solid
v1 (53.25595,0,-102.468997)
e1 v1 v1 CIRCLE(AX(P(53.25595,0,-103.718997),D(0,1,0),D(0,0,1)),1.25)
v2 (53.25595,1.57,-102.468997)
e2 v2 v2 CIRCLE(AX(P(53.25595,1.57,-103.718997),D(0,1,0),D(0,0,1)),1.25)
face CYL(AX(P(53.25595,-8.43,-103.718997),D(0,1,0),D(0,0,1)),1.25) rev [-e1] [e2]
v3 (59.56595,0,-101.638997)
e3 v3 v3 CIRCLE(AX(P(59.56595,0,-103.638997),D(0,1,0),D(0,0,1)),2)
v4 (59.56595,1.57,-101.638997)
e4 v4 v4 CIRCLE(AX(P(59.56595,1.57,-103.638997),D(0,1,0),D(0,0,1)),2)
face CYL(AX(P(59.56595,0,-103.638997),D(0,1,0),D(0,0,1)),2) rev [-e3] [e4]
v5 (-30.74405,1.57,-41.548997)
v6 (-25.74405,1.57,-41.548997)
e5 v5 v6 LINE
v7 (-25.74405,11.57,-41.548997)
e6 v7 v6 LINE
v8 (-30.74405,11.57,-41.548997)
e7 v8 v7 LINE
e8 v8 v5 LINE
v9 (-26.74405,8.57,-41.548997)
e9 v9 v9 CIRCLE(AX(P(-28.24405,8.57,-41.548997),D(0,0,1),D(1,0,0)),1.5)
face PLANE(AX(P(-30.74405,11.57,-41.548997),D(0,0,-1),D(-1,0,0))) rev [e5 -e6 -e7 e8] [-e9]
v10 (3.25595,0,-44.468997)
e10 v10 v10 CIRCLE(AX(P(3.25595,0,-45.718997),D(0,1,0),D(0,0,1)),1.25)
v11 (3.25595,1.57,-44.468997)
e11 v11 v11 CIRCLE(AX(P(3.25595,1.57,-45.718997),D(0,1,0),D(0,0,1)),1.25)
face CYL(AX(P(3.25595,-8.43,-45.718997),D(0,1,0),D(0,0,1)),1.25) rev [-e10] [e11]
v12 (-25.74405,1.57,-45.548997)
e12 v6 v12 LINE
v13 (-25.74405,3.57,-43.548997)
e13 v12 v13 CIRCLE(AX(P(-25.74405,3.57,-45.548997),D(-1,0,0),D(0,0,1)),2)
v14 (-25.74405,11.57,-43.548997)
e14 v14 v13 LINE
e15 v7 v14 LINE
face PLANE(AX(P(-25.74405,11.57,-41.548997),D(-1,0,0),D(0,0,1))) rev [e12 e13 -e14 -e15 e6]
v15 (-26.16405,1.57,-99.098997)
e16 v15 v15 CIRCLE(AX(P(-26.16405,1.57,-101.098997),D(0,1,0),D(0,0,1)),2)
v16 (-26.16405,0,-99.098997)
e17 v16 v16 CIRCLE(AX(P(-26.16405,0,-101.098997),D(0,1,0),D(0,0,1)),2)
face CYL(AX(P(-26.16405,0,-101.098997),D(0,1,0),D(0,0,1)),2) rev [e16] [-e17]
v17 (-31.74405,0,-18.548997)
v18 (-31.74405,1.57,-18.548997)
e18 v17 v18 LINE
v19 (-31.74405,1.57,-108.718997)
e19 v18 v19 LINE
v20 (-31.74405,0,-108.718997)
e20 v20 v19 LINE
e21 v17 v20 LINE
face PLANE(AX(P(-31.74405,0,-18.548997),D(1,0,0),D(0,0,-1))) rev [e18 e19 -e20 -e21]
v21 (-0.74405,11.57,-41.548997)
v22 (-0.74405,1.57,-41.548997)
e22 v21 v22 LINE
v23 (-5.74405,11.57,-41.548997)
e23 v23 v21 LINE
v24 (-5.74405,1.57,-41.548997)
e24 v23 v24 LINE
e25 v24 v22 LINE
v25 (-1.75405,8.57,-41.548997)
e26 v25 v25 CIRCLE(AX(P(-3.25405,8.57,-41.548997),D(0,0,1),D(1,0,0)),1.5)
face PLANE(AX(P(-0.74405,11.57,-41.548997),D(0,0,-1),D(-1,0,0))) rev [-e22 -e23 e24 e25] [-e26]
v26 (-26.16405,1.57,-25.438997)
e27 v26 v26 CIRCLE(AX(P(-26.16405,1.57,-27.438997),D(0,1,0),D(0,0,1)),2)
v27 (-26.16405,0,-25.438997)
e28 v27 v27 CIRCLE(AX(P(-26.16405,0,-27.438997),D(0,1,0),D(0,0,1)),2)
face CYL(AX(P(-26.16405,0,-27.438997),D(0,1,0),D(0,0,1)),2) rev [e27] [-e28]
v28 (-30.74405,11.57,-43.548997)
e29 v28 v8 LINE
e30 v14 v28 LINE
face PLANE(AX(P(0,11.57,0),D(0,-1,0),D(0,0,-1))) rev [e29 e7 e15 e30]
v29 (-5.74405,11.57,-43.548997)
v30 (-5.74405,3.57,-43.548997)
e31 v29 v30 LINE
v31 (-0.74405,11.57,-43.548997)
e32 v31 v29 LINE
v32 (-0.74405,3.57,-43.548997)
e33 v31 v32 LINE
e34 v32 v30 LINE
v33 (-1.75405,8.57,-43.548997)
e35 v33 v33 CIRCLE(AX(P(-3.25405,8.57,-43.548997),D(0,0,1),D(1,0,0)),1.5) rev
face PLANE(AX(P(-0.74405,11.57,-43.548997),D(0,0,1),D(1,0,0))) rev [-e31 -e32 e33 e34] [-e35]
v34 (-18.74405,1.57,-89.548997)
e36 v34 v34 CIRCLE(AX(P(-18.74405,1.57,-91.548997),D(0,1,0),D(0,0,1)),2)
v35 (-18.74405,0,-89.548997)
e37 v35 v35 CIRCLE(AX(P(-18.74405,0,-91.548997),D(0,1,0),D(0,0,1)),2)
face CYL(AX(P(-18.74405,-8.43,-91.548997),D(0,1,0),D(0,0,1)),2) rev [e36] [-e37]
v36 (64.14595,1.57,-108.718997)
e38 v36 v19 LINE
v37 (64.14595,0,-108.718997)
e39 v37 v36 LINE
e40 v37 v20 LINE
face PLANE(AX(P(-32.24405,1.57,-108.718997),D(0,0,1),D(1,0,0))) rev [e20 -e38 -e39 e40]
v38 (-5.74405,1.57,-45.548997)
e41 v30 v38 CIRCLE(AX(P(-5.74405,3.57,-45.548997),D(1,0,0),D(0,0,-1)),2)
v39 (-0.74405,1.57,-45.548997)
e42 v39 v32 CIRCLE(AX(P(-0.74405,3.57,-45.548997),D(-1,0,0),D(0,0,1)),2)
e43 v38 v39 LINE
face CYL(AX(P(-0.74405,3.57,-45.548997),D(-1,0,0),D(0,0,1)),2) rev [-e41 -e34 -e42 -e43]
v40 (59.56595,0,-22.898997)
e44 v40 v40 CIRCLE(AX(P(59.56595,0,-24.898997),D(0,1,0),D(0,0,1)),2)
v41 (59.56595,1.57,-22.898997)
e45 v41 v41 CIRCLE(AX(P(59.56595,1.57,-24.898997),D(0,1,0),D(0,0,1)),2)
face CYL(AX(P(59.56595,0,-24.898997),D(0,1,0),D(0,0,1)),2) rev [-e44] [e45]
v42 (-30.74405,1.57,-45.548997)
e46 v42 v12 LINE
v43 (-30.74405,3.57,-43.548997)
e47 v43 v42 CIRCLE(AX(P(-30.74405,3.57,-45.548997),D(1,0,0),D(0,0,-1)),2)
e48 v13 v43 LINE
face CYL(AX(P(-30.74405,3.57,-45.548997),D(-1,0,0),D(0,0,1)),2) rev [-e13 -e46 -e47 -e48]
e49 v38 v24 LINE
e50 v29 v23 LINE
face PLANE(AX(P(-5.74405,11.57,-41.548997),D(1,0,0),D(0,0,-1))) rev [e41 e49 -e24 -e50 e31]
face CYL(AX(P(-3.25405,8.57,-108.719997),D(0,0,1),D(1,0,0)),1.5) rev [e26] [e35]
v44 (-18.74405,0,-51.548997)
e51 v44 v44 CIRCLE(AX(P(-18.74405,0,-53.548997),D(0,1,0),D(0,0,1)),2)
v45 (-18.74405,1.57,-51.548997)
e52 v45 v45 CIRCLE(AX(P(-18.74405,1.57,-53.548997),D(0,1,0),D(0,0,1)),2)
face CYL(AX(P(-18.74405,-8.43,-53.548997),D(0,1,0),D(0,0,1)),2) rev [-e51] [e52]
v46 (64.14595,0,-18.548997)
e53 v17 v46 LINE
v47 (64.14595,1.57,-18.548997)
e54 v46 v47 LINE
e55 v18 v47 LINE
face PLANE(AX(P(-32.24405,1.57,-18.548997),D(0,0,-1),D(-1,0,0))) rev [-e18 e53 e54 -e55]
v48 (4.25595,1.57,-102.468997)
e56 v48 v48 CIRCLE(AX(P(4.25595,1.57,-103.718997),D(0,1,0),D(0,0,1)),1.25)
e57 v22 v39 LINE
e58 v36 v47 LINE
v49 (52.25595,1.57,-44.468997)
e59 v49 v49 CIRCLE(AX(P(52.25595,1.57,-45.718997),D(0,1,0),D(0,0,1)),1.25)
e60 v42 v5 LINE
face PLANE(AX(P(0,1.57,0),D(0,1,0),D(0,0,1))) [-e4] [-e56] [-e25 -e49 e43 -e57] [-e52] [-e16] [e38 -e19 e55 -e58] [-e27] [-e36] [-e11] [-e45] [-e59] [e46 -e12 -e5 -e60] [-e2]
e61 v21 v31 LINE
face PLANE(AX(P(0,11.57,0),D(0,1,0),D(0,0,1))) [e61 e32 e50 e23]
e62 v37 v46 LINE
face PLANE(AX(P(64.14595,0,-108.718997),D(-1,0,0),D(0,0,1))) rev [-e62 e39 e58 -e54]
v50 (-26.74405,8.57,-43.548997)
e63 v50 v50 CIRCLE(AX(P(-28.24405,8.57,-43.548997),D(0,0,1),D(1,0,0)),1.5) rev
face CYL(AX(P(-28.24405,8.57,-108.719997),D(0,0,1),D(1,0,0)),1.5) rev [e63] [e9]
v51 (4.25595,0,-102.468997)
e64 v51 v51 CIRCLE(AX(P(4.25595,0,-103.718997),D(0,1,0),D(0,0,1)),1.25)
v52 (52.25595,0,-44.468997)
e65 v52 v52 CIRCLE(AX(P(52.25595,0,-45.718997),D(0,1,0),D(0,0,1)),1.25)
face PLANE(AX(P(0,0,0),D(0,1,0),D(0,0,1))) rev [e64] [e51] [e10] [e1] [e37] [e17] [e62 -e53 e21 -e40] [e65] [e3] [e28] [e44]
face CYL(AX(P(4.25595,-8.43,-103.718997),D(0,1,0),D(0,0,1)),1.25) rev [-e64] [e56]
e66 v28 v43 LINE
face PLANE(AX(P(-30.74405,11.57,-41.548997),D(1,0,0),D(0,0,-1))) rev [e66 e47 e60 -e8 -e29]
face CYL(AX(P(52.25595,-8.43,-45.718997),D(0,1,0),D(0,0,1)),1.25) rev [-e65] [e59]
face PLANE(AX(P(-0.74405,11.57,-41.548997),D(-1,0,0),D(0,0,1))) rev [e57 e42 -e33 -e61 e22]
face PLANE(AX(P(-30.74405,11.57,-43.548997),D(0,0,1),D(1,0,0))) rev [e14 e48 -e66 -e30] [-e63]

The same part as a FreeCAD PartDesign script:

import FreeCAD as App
import Part
import Sketcher

V = App.Vector


def edges_at(feature, points):
    """Names of the edges that pass closest to the given points."""
    edges = feature.Shape.Edges
    near = lambda p: min(range(len(edges)), key=lambda i: edges[i].distToShape(Part.Vertex(*p))[0])
    return sorted({f"Edge{near(p) + 1}" for p in points})


def add_polygon(sketch, points):
    """Adds a closed chain of lines whose ends are joined by coincident constraints."""
    first, n = sketch.GeometryCount, len(points)
    for a, b in zip(points, points[1:] + points[:1]):
        sketch.addGeometry(Part.LineSegment(App.Vector(*a, 0), App.Vector(*b, 0)), False)
    for i in range(n):
        sketch.addConstraint(Sketcher.Constraint("Coincident", first + i, 2, first + (i + 1) % n, 1))

doc = App.newDocument("Part")
body = doc.addObject("PartDesign::Body", "Body")

sketch1 = body.newObject("Sketcher::SketchObject", "Sketch")
sketch1.AttachmentSupport = (doc.getObject("XZ_Plane"), [""])
sketch1.MapMode = "FlatFace"
add_polygon(sketch1, [(-32.24405, -108.718997), (-32.24405, -18.548997), (64.64595, -18.548997), (64.64595, -108.718997)])
sketch1.addConstraint(Sketcher.Constraint("Vertical", 0))
sketch1.addConstraint(Sketcher.Constraint("Horizontal", 1))
sketch1.addConstraint(Sketcher.Constraint("Vertical", 2))
sketch1.addConstraint(Sketcher.Constraint("Horizontal", 3))
sketch1.addConstraint(Sketcher.Constraint("DistanceX", 1, 1, 1, 2, 96.89))
sketch1.addConstraint(Sketcher.Constraint("DistanceY", 0, 1, 0, 2, 90.17))
sketch1.addConstraint(Sketcher.Constraint("DistanceX", 0, 2, -1, 1, 32.24405))
sketch1.addConstraint(Sketcher.Constraint("DistanceY", 0, 2, -1, 1, 18.548997))
pad1 = body.newObject("PartDesign::Pad", "Pad")
pad1.Profile = sketch1
pad1.Length = 1.57
pad1.Reversed = True

sketch2 = body.newObject("Sketcher::SketchObject", "Sketch001")
sketch2.AttachmentSupport = (doc.getObject("XZ_Plane"), [""])
sketch2.MapMode = "FlatFace"
sketch2.AttachmentOffset = App.Placement(V(0, 0, -1.57), App.Rotation())
sketch2.addGeometry(Part.Circle(V(59.56595, -24.898997, 0), V(0, 0, 1), 2), False)
sketch2.addGeometry(Part.Circle(V(-26.16405, -27.438997, 0), V(0, 0, 1), 2), False)
sketch2.addGeometry(Part.Circle(V(-26.16405, -101.098997, 0), V(0, 0, 1), 2), False)
sketch2.addGeometry(Part.Circle(V(59.56595, -103.638997, 0), V(0, 0, 1), 2), False)
sketch2.addConstraint(Sketcher.Constraint("Equal", 0, 1))
sketch2.addConstraint(Sketcher.Constraint("Equal", 1, 2))
sketch2.addConstraint(Sketcher.Constraint("Equal", 2, 3))
sketch2.addConstraint(Sketcher.Constraint("Vertical", 1, 3, 2, 3))
sketch2.addConstraint(Sketcher.Constraint("Vertical", 0, 3, 3, 3))
sketch2.addConstraint(Sketcher.Constraint("Diameter", 0, 4.0))
sketch2.addConstraint(Sketcher.Constraint("DistanceY", 2, 3, 0, 3, 76.2))
sketch2.addConstraint(Sketcher.Constraint("DistanceY", 3, 3, 1, 3, 76.2))
sketch2.addConstraint(Sketcher.Constraint("DistanceX", 1, 3, 0, 3, 85.73))
sketch2.addConstraint(Sketcher.Constraint("DistanceY", 1, 3, 0, 3, 2.54))
sketch2.addConstraint(Sketcher.Constraint("DistanceX", -1, 1, 0, 3, 59.56595))
sketch2.addConstraint(Sketcher.Constraint("DistanceY", 0, 3, -1, 1, 24.898997))
pocket1 = body.newObject("PartDesign::Pocket", "Pocket")
pocket1.Profile = sketch2
pocket1.Length = 1.57
pocket1.Reversed = True

sketch3 = body.newObject("Sketcher::SketchObject", "Sketch002")
sketch3.AttachmentSupport = (doc.getObject("XZ_Plane"), [""])
sketch3.MapMode = "FlatFace"
sketch3.AttachmentOffset = App.Placement(V(0, 0, -1.57), App.Rotation())
add_polygon(sketch3, [(-32.24405, -108.718997), (-32.24405, -18.548997), (-31.74405, -18.548997), (-31.74405, -108.718997)])
add_polygon(sketch3, [(64.14595, -108.718997), (64.14595, -18.548997), (64.64595, -18.548997), (64.64595, -108.718997)])
sketch3.addConstraint(Sketcher.Constraint("Vertical", 0))
sketch3.addConstraint(Sketcher.Constraint("Horizontal", 1))
sketch3.addConstraint(Sketcher.Constraint("Vertical", 2))
sketch3.addConstraint(Sketcher.Constraint("Horizontal", 3))
sketch3.addConstraint(Sketcher.Constraint("Vertical", 4))
sketch3.addConstraint(Sketcher.Constraint("Horizontal", 5))
sketch3.addConstraint(Sketcher.Constraint("Vertical", 6))
sketch3.addConstraint(Sketcher.Constraint("Horizontal", 7))
sketch3.addConstraint(Sketcher.Constraint("Horizontal", 1, 2, 4, 2))
sketch3.addConstraint(Sketcher.Constraint("Horizontal", 3, 2, 6, 2))
sketch3.addConstraint(Sketcher.Constraint("Equal", 3, 5))
sketch3.addConstraint(Sketcher.Constraint("DistanceX", 1, 1, 1, 2, 0.5))
sketch3.addConstraint(Sketcher.Constraint("DistanceY", 0, 1, 0, 2, 90.17))
sketch3.addConstraint(Sketcher.Constraint("DistanceX", 1, 2, 4, 2, 95.89))
sketch3.addConstraint(Sketcher.Constraint("DistanceX", 0, 2, -1, 1, 32.24405))
sketch3.addConstraint(Sketcher.Constraint("DistanceY", 0, 2, -1, 1, 18.548997))
pocket2 = body.newObject("PartDesign::Pocket", "Pocket001")
pocket2.Profile = sketch3
pocket2.Type = "ThroughAll"
pocket2.Reversed = True

sketch4 = body.newObject("Sketcher::SketchObject", "Sketch003")
sketch4.AttachmentSupport = (doc.getObject("XZ_Plane"), [""])
sketch4.MapMode = "FlatFace"
sketch4.AttachmentOffset = App.Placement(V(0, 0, -1.57), App.Rotation())
sketch4.addGeometry(Part.Circle(V(3.25595, -45.718997, 0), V(0, 0, 1), 1.25), False)
sketch4.addGeometry(Part.Circle(V(52.25595, -45.718997, 0), V(0, 0, 1), 1.25), False)
sketch4.addGeometry(Part.Circle(V(4.25595, -103.718997, 0), V(0, 0, 1), 1.25), False)
sketch4.addGeometry(Part.Circle(V(53.25595, -103.718997, 0), V(0, 0, 1), 1.25), False)
sketch4.addConstraint(Sketcher.Constraint("Equal", 0, 1))
sketch4.addConstraint(Sketcher.Constraint("Equal", 1, 2))
sketch4.addConstraint(Sketcher.Constraint("Equal", 2, 3))
sketch4.addConstraint(Sketcher.Constraint("Horizontal", 0, 3, 1, 3))
sketch4.addConstraint(Sketcher.Constraint("Horizontal", 2, 3, 3, 3))
sketch4.addConstraint(Sketcher.Constraint("Diameter", 0, 2.5))
sketch4.addConstraint(Sketcher.Constraint("DistanceX", 0, 3, 1, 3, 49.0))
sketch4.addConstraint(Sketcher.Constraint("DistanceX", 0, 3, 2, 3, 1.0))
sketch4.addConstraint(Sketcher.Constraint("DistanceY", 2, 3, 0, 3, 58.0))
sketch4.addConstraint(Sketcher.Constraint("DistanceX", 2, 3, 3, 3, 49.0))
sketch4.addConstraint(Sketcher.Constraint("DistanceX", -1, 1, 0, 3, 3.25595))
sketch4.addConstraint(Sketcher.Constraint("DistanceY", 0, 3, -1, 1, 45.718997))
pocket3 = body.newObject("PartDesign::Pocket", "Pocket002")
pocket3.Profile = sketch4
pocket3.Length = 10
pocket3.Reversed = True

sketch5 = body.newObject("Sketcher::SketchObject", "Sketch004")
sketch5.AttachmentSupport = (doc.getObject("XZ_Plane"), [""])
sketch5.MapMode = "FlatFace"
sketch5.AttachmentOffset = App.Placement(V(0, 0, -1.57), App.Rotation())
sketch5.addGeometry(Part.Circle(V(-18.74405, -91.548997, 0), V(0, 0, 1), 2), False)
sketch5.addGeometry(Part.Circle(V(-18.74405, -53.548997, 0), V(0, 0, 1), 2), False)
sketch5.addConstraint(Sketcher.Constraint("Equal", 0, 1))
sketch5.addConstraint(Sketcher.Constraint("Vertical", 0, 3, 1, 3))
sketch5.addConstraint(Sketcher.Constraint("Diameter", 0, 4.0))
sketch5.addConstraint(Sketcher.Constraint("DistanceY", 0, 3, 1, 3, 38.0))
sketch5.addConstraint(Sketcher.Constraint("DistanceX", 0, 3, -1, 1, 18.74405))
sketch5.addConstraint(Sketcher.Constraint("DistanceY", 0, 3, -1, 1, 91.548997))
pocket4 = body.newObject("PartDesign::Pocket", "Pocket003")
pocket4.Profile = sketch5
pocket4.Length = 10
pocket4.Reversed = True

sketch6 = body.newObject("Sketcher::SketchObject", "Sketch005")
sketch6.AttachmentSupport = (doc.getObject("XZ_Plane"), [""])
sketch6.MapMode = "FlatFace"
sketch6.AttachmentOffset = App.Placement(V(0, 0, -1.57), App.Rotation())
add_polygon(sketch6, [(-30.74405, -43.548997), (-30.74405, -41.548997), (-25.74405, -41.548997), (-25.74405, -43.548997)])
add_polygon(sketch6, [(-5.74405, -43.548997), (-5.74405, -41.548997), (-0.74405, -41.548997), (-0.74405, -43.548997)])
sketch6.addConstraint(Sketcher.Constraint("Vertical", 0))
sketch6.addConstraint(Sketcher.Constraint("Horizontal", 1))
sketch6.addConstraint(Sketcher.Constraint("Vertical", 2))
sketch6.addConstraint(Sketcher.Constraint("Horizontal", 3))
sketch6.addConstraint(Sketcher.Constraint("Vertical", 4))
sketch6.addConstraint(Sketcher.Constraint("Horizontal", 5))
sketch6.addConstraint(Sketcher.Constraint("Vertical", 6))
sketch6.addConstraint(Sketcher.Constraint("Horizontal", 7))
sketch6.addConstraint(Sketcher.Constraint("Horizontal", 1, 2, 4, 2))
sketch6.addConstraint(Sketcher.Constraint("Horizontal", 3, 2, 6, 2))
sketch6.addConstraint(Sketcher.Constraint("Equal", 3, 5))
sketch6.addConstraint(Sketcher.Constraint("DistanceX", 1, 1, 1, 2, 5.0))
sketch6.addConstraint(Sketcher.Constraint("DistanceY", 0, 1, 0, 2, 2.0))
sketch6.addConstraint(Sketcher.Constraint("DistanceX", 1, 2, 4, 2, 20.0))
sketch6.addConstraint(Sketcher.Constraint("DistanceX", 0, 2, -1, 1, 30.74405))
sketch6.addConstraint(Sketcher.Constraint("DistanceY", 0, 2, -1, 1, 41.548997))
pad2 = body.newObject("PartDesign::Pad", "Pad001")
pad2.Profile = sketch6
pad2.Length = 10
pad2.Reversed = True
doc.recompute()

fillet = body.newObject("PartDesign::Fillet", "Fillet")
fillet.Base = (pad2, edges_at(pad2, [(-3.244, 1.57, -43.549), (-28.244, 1.57, -43.549)]))
fillet.Radius = 2

sketch7 = body.newObject("Sketcher::SketchObject", "Sketch006")
sketch7.AttachmentSupport = (doc.getObject("XY_Plane"), [""])
sketch7.MapMode = "FlatFace"
sketch7.AttachmentOffset = App.Placement(V(0, 0, -41.548997), App.Rotation())
sketch7.addGeometry(Part.Circle(V(-28.24405, 8.57, 0), V(0, 0, 1), 1.5), False)
sketch7.addConstraint(Sketcher.Constraint("Diameter", 0, 3.0))
sketch7.addConstraint(Sketcher.Constraint("DistanceY", -1, 1, 0, 3, 8.57))
sketch7.addConstraint(Sketcher.Constraint("DistanceX", 0, 3, -1, 1, 28.24405))
pocket5 = body.newObject("PartDesign::Pocket", "Pocket004")
pocket5.Profile = sketch7
pocket5.Type = "UpToFirst"

sketch8 = body.newObject("Sketcher::SketchObject", "Sketch007")
sketch8.AttachmentSupport = (doc.getObject("XY_Plane"), [""])
sketch8.MapMode = "FlatFace"
sketch8.AttachmentOffset = App.Placement(V(0, 0, -41.548997), App.Rotation())
sketch8.addGeometry(Part.Circle(V(-3.25405, 8.57, 0), V(0, 0, 1), 1.5), False)
sketch8.addConstraint(Sketcher.Constraint("Diameter", 0, 3.0))
sketch8.addConstraint(Sketcher.Constraint("DistanceY", -1, 1, 0, 3, 8.57))
sketch8.addConstraint(Sketcher.Constraint("DistanceX", 0, 3, -1, 1, 3.25405))
pocket6 = body.newObject("PartDesign::Pocket", "Pocket005")
pocket6.Profile = sketch8
pocket6.Type = "UpToFirst"

doc.recompute()
